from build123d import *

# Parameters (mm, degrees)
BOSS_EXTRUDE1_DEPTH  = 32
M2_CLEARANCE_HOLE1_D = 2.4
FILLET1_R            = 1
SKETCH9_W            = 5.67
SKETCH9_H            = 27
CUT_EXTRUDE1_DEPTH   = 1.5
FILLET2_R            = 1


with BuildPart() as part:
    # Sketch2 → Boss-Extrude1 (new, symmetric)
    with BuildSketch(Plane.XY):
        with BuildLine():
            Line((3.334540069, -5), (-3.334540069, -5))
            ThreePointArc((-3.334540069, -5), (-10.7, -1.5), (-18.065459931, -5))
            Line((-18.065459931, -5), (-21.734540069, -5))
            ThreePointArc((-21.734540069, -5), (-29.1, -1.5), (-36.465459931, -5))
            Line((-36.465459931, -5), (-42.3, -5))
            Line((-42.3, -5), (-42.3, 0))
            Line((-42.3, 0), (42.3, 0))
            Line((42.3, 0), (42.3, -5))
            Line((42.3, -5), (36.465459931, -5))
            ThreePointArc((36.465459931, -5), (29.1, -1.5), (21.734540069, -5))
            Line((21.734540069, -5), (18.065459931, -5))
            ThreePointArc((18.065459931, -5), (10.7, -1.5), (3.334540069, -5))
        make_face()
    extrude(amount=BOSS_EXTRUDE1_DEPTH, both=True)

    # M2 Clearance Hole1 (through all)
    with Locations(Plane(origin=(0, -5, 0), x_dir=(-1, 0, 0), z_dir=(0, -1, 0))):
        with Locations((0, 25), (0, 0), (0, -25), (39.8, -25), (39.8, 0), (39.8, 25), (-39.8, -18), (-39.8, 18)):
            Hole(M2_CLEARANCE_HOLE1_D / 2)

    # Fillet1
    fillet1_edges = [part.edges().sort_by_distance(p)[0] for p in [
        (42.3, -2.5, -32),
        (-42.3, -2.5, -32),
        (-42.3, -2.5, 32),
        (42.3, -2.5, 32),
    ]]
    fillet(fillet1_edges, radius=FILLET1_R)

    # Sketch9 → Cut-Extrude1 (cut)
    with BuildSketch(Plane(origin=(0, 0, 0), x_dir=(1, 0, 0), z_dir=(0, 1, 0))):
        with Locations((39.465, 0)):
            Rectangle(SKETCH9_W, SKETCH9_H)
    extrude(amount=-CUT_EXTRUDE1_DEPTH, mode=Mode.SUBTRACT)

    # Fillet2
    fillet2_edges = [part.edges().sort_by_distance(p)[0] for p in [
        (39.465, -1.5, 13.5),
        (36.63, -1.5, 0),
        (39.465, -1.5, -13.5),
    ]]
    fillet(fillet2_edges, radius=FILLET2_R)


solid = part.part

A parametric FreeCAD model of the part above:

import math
import FreeCAD as App
import Part
import Sketcher
from FreeCAD import Vector


def edges_at(feature, points):
    """Names of the edges that pass closest to the given points."""
    edges = feature.Shape.Edges
    near = lambda p: min(range(len(edges)), key=lambda i: edges[i].distToShape(Part.Vertex(*p))[0])
    return sorted({f"Edge{near(p) + 1}" for p in points})


def add_polygon(sketch, points):
    """Adds a closed chain of lines whose ends are joined by coincident constraints."""
    first, n = sketch.GeometryCount, len(points)
    for a, b in zip(points, points[1:] + points[:1]):
        sketch.addGeometry(Part.LineSegment(App.Vector(*a, 0), App.Vector(*b, 0)), False)
    for i in range(n):
        sketch.addConstraint(Sketcher.Constraint("Coincident", first + i, 2, first + (i + 1) % n, 1))

doc = App.newDocument("Part")
body = doc.addObject("PartDesign::Body", "Body")

# Sketch on XY plane
sketch1 = body.newObject("Sketcher::SketchObject", "Sketch")
sketch1.AttachmentSupport = (doc.getObject("XY_Plane"), [""])
sketch1.MapMode = "FlatFace"
sketch1.addGeometry(Part.LineSegment(Vector(-3.3, -5, 0), Vector(3.3, -5, 0)), False)
sketch1.addGeometry(Part.ArcOfCircle(Part.Circle(Vector(10.7, -11, 0), Vector(0, 0, 1), 9.5), math.radians(39), math.radians(141)), False)
sketch1.addGeometry(Part.LineSegment(Vector(18.1, -5, 0), Vector(21.7, -5, 0)), False)
sketch1.addGeometry(Part.ArcOfCircle(Part.Circle(Vector(29.1, -11, 0), Vector(0, 0, 1), 9.5), math.radians(39), math.radians(141)), False)
sketch1.addGeometry(Part.LineSegment(Vector(36.5, -5, 0), Vector(42.3, -5, 0)), False)
sketch1.addGeometry(Part.LineSegment(Vector(42.3, -5, 0), Vector(42.3, 0, 0)), False)
sketch1.addGeometry(Part.LineSegment(Vector(42.3, 0, 0), Vector(-42.3, 0, 0)), False)
sketch1.addGeometry(Part.LineSegment(Vector(-42.3, 0, 0), Vector(-42.3, -5, 0)), False)
sketch1.addGeometry(Part.LineSegment(Vector(-42.3, -5, 0), Vector(-36.5, -5, 0)), False)
sketch1.addGeometry(Part.ArcOfCircle(Part.Circle(Vector(-29.1, -11, 0), Vector(0, 0, 1), 9.5), math.radians(39), math.radians(141)), False)
sketch1.addGeometry(Part.LineSegment(Vector(-21.7, -5, 0), Vector(-18.1, -5, 0)), False)
sketch1.addGeometry(Part.ArcOfCircle(Part.Circle(Vector(-10.7, -11, 0), Vector(0, 0, 1), 9.5), math.radians(39), math.radians(141)), False)
sketch1.addConstraint(Sketcher.Constraint("Coincident", 0, 2, 1, 2))
sketch1.addConstraint(Sketcher.Constraint("Coincident", 1, 1, 2, 1))
sketch1.addConstraint(Sketcher.Constraint("Coincident", 2, 2, 3, 2))
sketch1.addConstraint(Sketcher.Constraint("Coincident", 3, 1, 4, 1))
sketch1.addConstraint(Sketcher.Constraint("Coincident", 4, 2, 5, 1))
sketch1.addConstraint(Sketcher.Constraint("Coincident", 5, 2, 6, 1))
sketch1.addConstraint(Sketcher.Constraint("Coincident", 6, 2, 7, 1))
sketch1.addConstraint(Sketcher.Constraint("Coincident", 7, 2, 8, 1))
sketch1.addConstraint(Sketcher.Constraint("Coincident", 8, 2, 9, 2))
sketch1.addConstraint(Sketcher.Constraint("Coincident", 9, 1, 10, 1))
sketch1.addConstraint(Sketcher.Constraint("Coincident", 10, 2, 11, 2))
sketch1.addConstraint(Sketcher.Constraint("Coincident", 11, 1, 0, 1))
sketch1.addConstraint(Sketcher.Constraint("Horizontal", 0))
sketch1.addConstraint(Sketcher.Constraint("Horizontal", 2))
sketch1.addConstraint(Sketcher.Constraint("Horizontal", 4))
sketch1.addConstraint(Sketcher.Constraint("Vertical", 5))
sketch1.addConstraint(Sketcher.Constraint("Horizontal", 6))
sketch1.addConstraint(Sketcher.Constraint("Vertical", 7))
sketch1.addConstraint(Sketcher.Constraint("Horizontal", 8))
sketch1.addConstraint(Sketcher.Constraint("Horizontal", 10))
sketch1.addConstraint(Sketcher.Constraint("Equal", 1, 3))
sketch1.addConstraint(Sketcher.Constraint("Equal", 3, 9))
sketch1.addConstraint(Sketcher.Constraint("Equal", 9, 11))
sketch1.addConstraint(Sketcher.Constraint("Symmetric", 5, 2, 6, 2, -1, 1))
sketch1.addConstraint(Sketcher.Constraint("Symmetric", 3, 3, 9, 3, -2))
sketch1.addConstraint(Sketcher.Constraint("Symmetric", 1, 3, 11, 3, -2))
sketch1.addConstraint(Sketcher.Constraint("Horizontal", 1, 3, 3, 3))
sketch1.addConstraint(Sketcher.Constraint("Horizontal", 0, 2, 1, 1))
sketch1.addConstraint(Sketcher.Constraint("Horizontal", 2, 2, 3, 1))
sketch1.addConstraint(Sketcher.Constraint("Horizontal", 4, 2, 7, 2))
sketch1.addConstraint(Sketcher.Constraint("Horizontal", 8, 2, 9, 1))
sketch1.addConstraint(Sketcher.Constraint("Radius", 1, 9.5))
sketch1.addConstraint(Sketcher.Constraint("DistanceY", 5, 1, 5, 2, 5.0))
sketch1.addConstraint(Sketcher.Constraint("DistanceX", 6, 2, 6, 1, 84.6))
sketch1.addConstraint(Sketcher.Constraint("DistanceY", 1, 3, -1, 1, 11.0))
sketch1.addConstraint(Sketcher.Constraint("DistanceX", 6, 2, 1, 3, 53.0))
sketch1.addConstraint(Sketcher.Constraint("DistanceX", -1, 1, 3, 3, 29.1))
pad1 = body.newObject("PartDesign::Pad", "Pad")
pad1.Profile = sketch1
pad1.Length = 64
pad1.Midplane = True

# Sketch on XZ plane
sketch2 = body.newObject("Sketcher::SketchObject", "Sketch001")
sketch2.AttachmentSupport = (doc.getObject("XZ_Plane"), [""])
sketch2.MapMode = "FlatFace"
sketch2.AttachmentOffset = App.Placement(Vector(0, 0, 5), App.Rotation())
sketch2.addGeometry(Part.Circle(Vector(0, -25, 0), Vector(0, 0, 1), 1.2), False)
sketch2.addGeometry(Part.Circle(Vector(0, 0, 0), Vector(0, 0, 1), 1.2), False)
sketch2.addGeometry(Part.Circle(Vector(0, 25, 0), Vector(0, 0, 1), 1.2), False)
sketch2.addGeometry(Part.Circle(Vector(-39.8, 25, 0), Vector(0, 0, 1), 1.2), False)
sketch2.addGeometry(Part.Circle(Vector(-39.8, 0, 0), Vector(0, 0, 1), 1.2), False)
sketch2.addGeometry(Part.Circle(Vector(-39.8, -25, 0), Vector(0, 0, 1), 1.2), False)
sketch2.addGeometry(Part.Circle(Vector(39.8, 18, 0), Vector(0, 0, 1), 1.2), False)
sketch2.addGeometry(Part.Circle(Vector(39.8, -18, 0), Vector(0, 0, 1), 1.2), False)
sketch2.addConstraint(Sketcher.Constraint("Coincident", 1, 3, -1, 1))
sketch2.addConstraint(Sketcher.Constraint("Equal", 0, 1))
sketch2.addConstraint(Sketcher.Constraint("Equal", 1, 2))
sketch2.addConstraint(Sketcher.Constraint("Equal", 2, 3))
sketch2.addConstraint(Sketcher.Constraint("Equal", 3, 4))
sketch2.addConstraint(Sketcher.Constraint("Equal", 4, 5))
sketch2.addConstraint(Sketcher.Constraint("Equal", 5, 6))
sketch2.addConstraint(Sketcher.Constraint("Equal", 6, 7))
sketch2.addConstraint(Sketcher.Constraint("Symmetric", 0, 3, 2, 3, -1, 1))
sketch2.addConstraint(Sketcher.Constraint("Symmetric", 3, 3, 5, 3, -1))
sketch2.addConstraint(Sketcher.Constraint("Symmetric", 6, 3, 7, 3, -1))
sketch2.addConstraint(Sketcher.Constraint("PointOnObject", 0, 3, -2))
sketch2.addConstraint(Sketcher.Constraint("PointOnObject", 4, 3, -1))
sketch2.addConstraint(Sketcher.Constraint("Horizontal", 2, 3, 3, 3))
sketch2.addConstraint(Sketcher.Constraint("Vertical", 3, 3, 4, 3))
sketch2.addConstraint(Sketcher.Constraint("Diameter", 0, 2.4))
sketch2.addConstraint(Sketcher.Constraint("DistanceY", 0, 3, -1, 1, 25.0))
sketch2.addConstraint(Sketcher.Constraint("DistanceY", -1, 1, 6, 3, 18.0))
sketch2.addConstraint(Sketcher.Constraint("DistanceX", 3, 3, -1, 1, 39.8))
sketch2.addConstraint(Sketcher.Constraint("DistanceX", -1, 1, 6, 3, 39.8))
doc.recompute()
hole = body.newObject("PartDesign::Hole", "Hole")
hole.Profile = sketch2
hole.ThreadType = "None"
hole.Diameter = 2.4
hole.DepthType = "ThroughAll"
doc.recompute()

fillet = body.newObject("PartDesign::Fillet", "Fillet")
fillet.Base = (hole, edges_at(hole, [
    (42.3, -2.5, -32),
    (-42.3, -2.5, -32),
    (-42.3, -2.5, 32),
    (42.3, -2.5, 32),
]))
fillet.Radius = 1

# Sketch on XZ plane
sketch3 = body.newObject("Sketcher::SketchObject", "Sketch002")
sketch3.AttachmentSupport = (doc.getObject("XZ_Plane"), [""])
sketch3.MapMode = "FlatFace"
add_polygon(sketch3, [(37, -14), (37, 14), (42, 14), (42, -14)])  # lines 0-3
sketch3.addConstraint(Sketcher.Constraint("Vertical", 0))
sketch3.addConstraint(Sketcher.Constraint("Horizontal", 1))
sketch3.addConstraint(Sketcher.Constraint("Vertical", 2))
sketch3.addConstraint(Sketcher.Constraint("Horizontal", 3))
sketch3.addConstraint(Sketcher.Constraint("DistanceY", 0, 1, 0, 2, 27.0))
sketch3.addConstraint(Sketcher.Constraint("DistanceX", 1, 1, 1, 2, 5.67))
sketch3.addConstraint(Sketcher.Constraint("DistanceY", -1, 1, 0, 2, 13.5))
sketch3.addConstraint(Sketcher.Constraint("DistanceX", -1, 1, 1, 2, 42.3))
pocket1 = body.newObject("PartDesign::Pocket", "Pocket")
pocket1.Profile = sketch3
pocket1.Length = 1.5
pocket1.Reversed = True
doc.recompute()

fillet2 = body.newObject("PartDesign::Fillet", "Fillet001")
fillet2.Base = (pocket1, edges_at(pocket1, [(39.465, -1.5, 13.5), (36.63, -1.5, 0), (39.465, -1.5, -13.5)]))
fillet2.Radius = 1

doc.recompute()
